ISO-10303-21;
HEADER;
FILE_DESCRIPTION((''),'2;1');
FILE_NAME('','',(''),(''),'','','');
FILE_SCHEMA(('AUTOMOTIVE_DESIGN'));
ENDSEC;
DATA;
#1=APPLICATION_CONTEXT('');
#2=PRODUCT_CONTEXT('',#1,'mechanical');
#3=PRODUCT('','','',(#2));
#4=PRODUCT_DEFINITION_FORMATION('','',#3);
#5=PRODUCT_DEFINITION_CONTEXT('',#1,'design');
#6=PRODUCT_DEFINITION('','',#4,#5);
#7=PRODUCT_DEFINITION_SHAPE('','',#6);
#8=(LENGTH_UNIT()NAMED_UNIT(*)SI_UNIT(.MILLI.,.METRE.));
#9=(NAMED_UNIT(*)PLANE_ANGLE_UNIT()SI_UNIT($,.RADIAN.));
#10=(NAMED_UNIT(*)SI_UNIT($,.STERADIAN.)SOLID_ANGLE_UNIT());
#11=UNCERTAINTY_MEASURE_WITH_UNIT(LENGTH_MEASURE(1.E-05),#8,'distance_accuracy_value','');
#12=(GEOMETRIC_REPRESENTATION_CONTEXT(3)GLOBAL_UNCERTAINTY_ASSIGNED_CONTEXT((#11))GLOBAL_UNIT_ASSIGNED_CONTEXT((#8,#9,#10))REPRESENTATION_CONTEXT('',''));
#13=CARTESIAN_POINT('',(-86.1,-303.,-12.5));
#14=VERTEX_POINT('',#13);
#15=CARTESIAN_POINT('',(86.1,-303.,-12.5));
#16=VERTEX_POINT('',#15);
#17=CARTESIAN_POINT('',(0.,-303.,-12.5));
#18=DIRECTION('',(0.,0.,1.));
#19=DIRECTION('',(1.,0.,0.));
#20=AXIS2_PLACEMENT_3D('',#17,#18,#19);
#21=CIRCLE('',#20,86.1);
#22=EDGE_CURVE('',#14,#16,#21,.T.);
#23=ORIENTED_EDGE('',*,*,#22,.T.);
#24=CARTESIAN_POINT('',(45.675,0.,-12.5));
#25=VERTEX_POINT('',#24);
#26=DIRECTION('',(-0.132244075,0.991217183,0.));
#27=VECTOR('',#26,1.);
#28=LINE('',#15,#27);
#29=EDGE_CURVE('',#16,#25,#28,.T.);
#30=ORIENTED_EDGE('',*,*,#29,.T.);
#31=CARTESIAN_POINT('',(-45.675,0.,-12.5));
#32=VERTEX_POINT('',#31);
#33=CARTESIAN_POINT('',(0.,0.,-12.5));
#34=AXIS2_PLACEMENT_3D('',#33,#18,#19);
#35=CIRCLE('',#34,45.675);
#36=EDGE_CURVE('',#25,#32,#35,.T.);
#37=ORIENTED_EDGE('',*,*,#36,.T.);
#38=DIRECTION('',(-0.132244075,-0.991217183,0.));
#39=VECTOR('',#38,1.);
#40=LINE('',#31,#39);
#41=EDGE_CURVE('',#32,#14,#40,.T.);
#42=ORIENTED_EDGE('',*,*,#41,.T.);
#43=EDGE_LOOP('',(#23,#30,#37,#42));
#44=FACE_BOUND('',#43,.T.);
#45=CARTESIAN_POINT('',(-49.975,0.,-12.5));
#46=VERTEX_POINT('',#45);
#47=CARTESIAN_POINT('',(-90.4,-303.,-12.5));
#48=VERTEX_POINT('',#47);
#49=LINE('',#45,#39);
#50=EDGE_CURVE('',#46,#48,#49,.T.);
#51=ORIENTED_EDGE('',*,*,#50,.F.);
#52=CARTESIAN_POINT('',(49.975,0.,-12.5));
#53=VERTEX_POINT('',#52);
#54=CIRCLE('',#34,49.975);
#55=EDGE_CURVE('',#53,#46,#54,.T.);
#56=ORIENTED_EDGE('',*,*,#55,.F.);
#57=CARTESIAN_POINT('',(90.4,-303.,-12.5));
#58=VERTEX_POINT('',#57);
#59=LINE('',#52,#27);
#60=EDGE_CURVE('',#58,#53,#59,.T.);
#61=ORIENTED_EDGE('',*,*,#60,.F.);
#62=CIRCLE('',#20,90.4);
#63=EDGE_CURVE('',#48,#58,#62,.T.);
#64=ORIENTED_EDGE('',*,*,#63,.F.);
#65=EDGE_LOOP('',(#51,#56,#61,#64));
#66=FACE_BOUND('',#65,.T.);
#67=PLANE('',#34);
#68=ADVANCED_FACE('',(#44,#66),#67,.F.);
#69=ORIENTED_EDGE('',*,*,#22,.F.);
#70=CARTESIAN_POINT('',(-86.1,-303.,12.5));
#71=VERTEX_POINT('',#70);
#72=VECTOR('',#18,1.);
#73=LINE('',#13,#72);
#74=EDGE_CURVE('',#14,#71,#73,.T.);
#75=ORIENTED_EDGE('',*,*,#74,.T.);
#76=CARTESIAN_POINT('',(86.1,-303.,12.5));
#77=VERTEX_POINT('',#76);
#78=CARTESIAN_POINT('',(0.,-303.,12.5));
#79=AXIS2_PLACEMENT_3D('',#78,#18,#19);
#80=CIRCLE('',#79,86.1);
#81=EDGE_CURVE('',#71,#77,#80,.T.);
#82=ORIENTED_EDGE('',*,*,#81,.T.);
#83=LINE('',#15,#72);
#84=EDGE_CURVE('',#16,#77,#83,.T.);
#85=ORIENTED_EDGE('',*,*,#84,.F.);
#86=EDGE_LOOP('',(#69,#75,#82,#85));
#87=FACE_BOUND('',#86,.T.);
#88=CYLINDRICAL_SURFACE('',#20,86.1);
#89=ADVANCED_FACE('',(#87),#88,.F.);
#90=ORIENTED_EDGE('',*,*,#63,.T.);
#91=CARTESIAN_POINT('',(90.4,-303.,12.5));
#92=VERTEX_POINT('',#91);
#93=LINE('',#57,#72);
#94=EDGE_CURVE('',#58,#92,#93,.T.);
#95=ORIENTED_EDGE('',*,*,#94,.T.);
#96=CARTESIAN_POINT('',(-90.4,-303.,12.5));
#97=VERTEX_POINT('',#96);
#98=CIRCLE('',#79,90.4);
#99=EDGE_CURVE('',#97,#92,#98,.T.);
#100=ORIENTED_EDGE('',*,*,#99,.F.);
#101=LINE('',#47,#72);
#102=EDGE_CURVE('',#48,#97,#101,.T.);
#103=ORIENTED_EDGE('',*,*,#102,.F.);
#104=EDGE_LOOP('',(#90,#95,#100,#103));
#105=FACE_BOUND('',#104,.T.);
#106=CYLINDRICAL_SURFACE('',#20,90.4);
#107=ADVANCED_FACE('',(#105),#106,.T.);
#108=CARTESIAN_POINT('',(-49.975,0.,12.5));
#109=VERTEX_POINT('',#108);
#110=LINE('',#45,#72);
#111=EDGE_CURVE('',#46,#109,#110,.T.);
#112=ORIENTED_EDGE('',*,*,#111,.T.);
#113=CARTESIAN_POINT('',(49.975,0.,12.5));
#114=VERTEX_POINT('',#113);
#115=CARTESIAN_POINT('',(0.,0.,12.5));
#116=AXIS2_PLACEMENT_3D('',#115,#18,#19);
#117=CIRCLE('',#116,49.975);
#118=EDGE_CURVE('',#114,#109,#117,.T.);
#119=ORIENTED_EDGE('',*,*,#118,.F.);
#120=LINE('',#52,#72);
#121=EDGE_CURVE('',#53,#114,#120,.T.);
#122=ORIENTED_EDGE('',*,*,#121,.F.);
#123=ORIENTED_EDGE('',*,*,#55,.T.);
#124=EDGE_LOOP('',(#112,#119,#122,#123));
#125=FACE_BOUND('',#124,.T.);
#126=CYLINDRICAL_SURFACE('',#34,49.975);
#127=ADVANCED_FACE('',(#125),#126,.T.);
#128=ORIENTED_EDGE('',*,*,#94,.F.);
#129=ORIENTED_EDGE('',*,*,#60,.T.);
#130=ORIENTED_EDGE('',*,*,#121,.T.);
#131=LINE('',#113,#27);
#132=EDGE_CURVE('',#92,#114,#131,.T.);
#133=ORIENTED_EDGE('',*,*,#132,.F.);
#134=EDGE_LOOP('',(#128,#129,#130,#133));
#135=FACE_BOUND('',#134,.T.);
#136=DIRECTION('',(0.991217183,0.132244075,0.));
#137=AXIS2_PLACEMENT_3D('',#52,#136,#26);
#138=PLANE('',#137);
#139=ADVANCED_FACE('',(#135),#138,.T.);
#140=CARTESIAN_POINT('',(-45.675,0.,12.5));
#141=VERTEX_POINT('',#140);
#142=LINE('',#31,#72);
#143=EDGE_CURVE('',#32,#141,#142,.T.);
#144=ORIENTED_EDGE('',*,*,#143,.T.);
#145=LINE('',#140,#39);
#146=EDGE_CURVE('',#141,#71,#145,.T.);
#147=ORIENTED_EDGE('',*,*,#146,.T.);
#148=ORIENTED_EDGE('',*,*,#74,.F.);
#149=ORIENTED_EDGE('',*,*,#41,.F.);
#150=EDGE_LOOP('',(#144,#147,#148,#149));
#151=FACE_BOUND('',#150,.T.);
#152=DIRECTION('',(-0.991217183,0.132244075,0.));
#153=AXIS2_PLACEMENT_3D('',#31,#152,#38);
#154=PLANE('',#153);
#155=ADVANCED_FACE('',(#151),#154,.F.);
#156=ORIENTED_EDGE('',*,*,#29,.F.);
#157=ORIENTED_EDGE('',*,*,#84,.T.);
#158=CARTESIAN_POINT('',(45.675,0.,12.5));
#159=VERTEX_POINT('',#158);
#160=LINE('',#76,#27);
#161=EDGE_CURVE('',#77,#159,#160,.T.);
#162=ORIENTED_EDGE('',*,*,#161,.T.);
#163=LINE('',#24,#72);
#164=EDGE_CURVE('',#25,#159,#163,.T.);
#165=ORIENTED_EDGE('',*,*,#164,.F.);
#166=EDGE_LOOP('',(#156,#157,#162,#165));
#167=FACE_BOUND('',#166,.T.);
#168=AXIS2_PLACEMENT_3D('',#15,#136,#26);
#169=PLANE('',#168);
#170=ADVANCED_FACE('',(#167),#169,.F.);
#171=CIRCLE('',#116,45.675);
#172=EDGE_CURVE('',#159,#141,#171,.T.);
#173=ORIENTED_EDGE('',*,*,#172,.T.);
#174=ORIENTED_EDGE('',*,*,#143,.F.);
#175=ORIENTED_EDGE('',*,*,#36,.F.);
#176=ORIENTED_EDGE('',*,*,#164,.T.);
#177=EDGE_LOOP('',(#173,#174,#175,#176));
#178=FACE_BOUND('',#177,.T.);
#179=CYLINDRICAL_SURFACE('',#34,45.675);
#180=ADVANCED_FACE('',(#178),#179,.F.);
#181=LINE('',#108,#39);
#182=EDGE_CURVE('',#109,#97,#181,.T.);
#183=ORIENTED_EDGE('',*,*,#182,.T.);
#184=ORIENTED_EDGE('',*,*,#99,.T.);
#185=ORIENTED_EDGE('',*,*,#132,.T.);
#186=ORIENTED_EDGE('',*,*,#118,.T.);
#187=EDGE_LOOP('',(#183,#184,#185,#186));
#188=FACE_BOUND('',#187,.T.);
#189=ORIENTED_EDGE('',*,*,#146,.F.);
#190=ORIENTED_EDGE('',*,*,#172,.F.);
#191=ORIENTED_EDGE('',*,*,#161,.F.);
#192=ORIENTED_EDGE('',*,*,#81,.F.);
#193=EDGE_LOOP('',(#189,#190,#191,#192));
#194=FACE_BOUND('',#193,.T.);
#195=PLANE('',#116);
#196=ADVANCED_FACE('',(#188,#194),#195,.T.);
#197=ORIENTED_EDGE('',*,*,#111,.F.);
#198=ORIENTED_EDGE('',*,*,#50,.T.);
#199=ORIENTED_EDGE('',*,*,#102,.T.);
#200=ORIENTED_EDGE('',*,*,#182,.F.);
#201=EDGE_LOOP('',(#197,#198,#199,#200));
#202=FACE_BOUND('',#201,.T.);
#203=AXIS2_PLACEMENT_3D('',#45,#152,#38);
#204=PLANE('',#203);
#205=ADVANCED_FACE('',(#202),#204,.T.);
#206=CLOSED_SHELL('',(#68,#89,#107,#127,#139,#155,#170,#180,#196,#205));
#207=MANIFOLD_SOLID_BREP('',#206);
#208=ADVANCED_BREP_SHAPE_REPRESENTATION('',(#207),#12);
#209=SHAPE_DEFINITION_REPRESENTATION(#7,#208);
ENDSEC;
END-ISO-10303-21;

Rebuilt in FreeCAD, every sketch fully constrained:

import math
import FreeCAD as App
import Part
import Sketcher
Q = App.Units.Quantity

doc = App.newDocument("Part")
body = doc.addObject("PartDesign::Body", "Body")

# Sketch on XY plane
sketch1 = doc.addObject("Sketcher::SketchObject", "Sketch")
body.addObject(sketch1)
sketch1.AttachmentSupport = (doc.XY_Plane, [""])
sketch1.MapMode = "FlatFace"
sketch1.addGeometry([
    Part.LineSegment(App.Vector(-50, 0, 0), App.Vector(-90, -303, 0)),  # 0
    Part.ArcOfCircle(Part.Circle(App.Vector(0, -303, 0), App.Vector(0, 0, 1), 90), math.radians(180), math.radians(360)),  # 1
    Part.LineSegment(App.Vector(90, -303, 0), App.Vector(50, 0, 0)),  # 2
    Part.ArcOfCircle(Part.Circle(App.Vector(0, 0, 0), App.Vector(0, 0, 1), 50), math.radians(0), math.radians(180)),  # 3
    Part.LineSegment(App.Vector(46, 0, 0), App.Vector(86, -303, 0)),  # 4
    Part.ArcOfCircle(Part.Circle(App.Vector(0, -303, 0), App.Vector(0, 0, 1), 86), math.radians(180), math.radians(360)),  # 5
    Part.LineSegment(App.Vector(-86, -303, 0), App.Vector(-46, 0, 0)),  # 6
    Part.ArcOfCircle(Part.Circle(App.Vector(0, 0, 0), App.Vector(0, 0, 1), 46), math.radians(0), math.radians(180)),  # 7
], False)
sketch1.addConstraint([
    Sketcher.Constraint("Coincident", 0, 2, 1, 1),
    Sketcher.Constraint("Coincident", 1, 2, 2, 1),
    Sketcher.Constraint("Coincident", 2, 2, 3, 1),
    Sketcher.Constraint("Coincident", 3, 2, 0, 1),
    Sketcher.Constraint("Coincident", 4, 2, 5, 2),
    Sketcher.Constraint("Coincident", 5, 1, 6, 1),
    Sketcher.Constraint("Coincident", 6, 2, 7, 2),
    Sketcher.Constraint("Coincident", 7, 1, 4, 1),
    Sketcher.Constraint("Coincident", 3, 3, -1, 1),
    Sketcher.Constraint("Coincident", 7, 3, -1, 1),
    Sketcher.Constraint("Coincident", 5, 3, 1, 3),
    Sketcher.Constraint("Symmetric", 0, 2, 1, 2, -2),
    Sketcher.Constraint("PointOnObject", 2, 2, -1),
    Sketcher.Constraint("PointOnObject", 3, 2, -1),
    Sketcher.Constraint("PointOnObject", 6, 2, -1),
    Sketcher.Constraint("PointOnObject", 7, 1, -1),
    Sketcher.Constraint("Parallel", 2, 4),
    Sketcher.Constraint("Parallel", 0, 6),
    Sketcher.Constraint("Horizontal", 5, 3, 0, 2),
    Sketcher.Constraint("Horizontal", 1, 2, 4, 2),
    Sketcher.Constraint("Radius", 1, Q("90.4 mm")),
    Sketcher.Constraint("Radius", 5, Q("86.1 mm")),
    Sketcher.Constraint("DistanceY", 1, 3, -1, 1, Q("303 mm")),
    Sketcher.Constraint("Radius", 3, Q("49.975 mm")),
])
pad1 = doc.addObject("PartDesign::Pad", "Pad")
body.addObject(pad1)
pad1.Profile = sketch1
pad1.Type = "TwoLengths"
pad1.Length = 12.5
pad1.Length2 = 12.5

doc.recompute()
